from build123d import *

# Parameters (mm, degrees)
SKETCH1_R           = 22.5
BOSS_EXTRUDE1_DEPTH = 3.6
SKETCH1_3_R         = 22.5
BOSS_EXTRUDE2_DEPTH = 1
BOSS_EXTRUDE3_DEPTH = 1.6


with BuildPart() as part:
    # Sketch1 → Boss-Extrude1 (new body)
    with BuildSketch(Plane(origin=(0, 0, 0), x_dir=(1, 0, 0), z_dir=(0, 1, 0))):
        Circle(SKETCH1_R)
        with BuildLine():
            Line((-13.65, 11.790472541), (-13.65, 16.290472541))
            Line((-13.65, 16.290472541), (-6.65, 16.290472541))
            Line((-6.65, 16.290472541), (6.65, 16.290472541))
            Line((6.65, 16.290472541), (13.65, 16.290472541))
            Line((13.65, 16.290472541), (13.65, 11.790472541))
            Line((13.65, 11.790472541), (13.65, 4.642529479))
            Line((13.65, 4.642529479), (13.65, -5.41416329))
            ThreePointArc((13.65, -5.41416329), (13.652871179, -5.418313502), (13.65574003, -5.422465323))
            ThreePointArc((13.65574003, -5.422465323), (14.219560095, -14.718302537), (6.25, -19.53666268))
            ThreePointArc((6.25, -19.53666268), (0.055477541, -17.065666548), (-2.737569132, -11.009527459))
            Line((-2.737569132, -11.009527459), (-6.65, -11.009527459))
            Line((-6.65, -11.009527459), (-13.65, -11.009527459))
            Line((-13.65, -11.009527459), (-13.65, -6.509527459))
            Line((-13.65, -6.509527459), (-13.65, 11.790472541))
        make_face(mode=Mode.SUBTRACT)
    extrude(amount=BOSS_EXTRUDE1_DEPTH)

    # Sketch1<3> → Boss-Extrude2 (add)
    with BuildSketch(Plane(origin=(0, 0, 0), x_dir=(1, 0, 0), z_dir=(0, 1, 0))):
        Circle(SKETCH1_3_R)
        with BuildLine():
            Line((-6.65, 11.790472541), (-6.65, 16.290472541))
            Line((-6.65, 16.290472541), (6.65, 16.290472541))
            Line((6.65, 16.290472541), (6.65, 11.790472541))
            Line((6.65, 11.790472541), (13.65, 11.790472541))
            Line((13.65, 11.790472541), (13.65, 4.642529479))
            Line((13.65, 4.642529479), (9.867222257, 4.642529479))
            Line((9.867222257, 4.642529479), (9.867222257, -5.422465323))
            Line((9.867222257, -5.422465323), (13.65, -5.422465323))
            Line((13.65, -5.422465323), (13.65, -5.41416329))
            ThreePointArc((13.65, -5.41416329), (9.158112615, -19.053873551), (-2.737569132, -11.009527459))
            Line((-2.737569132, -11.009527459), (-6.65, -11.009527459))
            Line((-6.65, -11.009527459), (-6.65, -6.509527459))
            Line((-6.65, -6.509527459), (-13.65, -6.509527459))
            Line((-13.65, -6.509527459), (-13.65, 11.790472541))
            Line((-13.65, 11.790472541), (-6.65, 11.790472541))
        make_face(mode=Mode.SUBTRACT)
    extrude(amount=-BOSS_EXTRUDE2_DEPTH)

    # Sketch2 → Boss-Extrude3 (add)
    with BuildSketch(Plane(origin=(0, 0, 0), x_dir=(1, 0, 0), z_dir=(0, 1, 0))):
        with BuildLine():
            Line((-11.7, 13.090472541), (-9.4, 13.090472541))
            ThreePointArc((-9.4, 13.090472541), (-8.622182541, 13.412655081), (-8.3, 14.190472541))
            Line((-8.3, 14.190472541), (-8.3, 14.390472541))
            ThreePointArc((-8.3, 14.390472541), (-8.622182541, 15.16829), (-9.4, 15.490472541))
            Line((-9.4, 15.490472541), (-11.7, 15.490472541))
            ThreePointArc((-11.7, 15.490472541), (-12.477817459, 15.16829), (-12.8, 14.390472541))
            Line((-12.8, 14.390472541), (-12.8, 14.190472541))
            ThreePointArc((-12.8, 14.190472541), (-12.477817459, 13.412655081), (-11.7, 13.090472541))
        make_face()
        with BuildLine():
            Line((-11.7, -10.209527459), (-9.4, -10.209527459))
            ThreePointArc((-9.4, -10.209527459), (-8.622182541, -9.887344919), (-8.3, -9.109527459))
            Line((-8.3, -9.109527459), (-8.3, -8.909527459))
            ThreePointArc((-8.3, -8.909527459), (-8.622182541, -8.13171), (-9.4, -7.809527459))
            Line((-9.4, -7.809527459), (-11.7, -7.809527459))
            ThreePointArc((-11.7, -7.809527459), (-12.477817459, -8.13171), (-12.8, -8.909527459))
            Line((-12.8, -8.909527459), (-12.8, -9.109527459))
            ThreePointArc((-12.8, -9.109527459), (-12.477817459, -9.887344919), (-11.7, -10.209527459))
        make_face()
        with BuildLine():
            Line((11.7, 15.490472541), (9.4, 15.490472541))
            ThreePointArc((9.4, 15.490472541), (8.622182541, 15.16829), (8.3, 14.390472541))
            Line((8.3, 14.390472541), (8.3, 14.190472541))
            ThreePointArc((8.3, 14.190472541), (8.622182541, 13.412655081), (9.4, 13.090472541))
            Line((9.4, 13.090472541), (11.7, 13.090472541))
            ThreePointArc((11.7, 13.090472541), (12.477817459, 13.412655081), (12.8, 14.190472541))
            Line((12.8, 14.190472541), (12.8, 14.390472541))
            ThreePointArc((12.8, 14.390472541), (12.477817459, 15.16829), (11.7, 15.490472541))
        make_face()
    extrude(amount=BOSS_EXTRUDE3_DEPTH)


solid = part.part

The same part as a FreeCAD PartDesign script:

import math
import FreeCAD as App
import Part
import Sketcher

V = App.Vector
Q = App.Units.Quantity

doc = App.newDocument("Part")
params = doc.addObject("Spreadsheet::Sheet", "Params")
for row, (alias, value) in enumerate([
    ("sketch1_diameter", "45 mm"),
    ("sketch1_radius", "9 mm"),
    ("sketch1_width", "27.3 mm"),
    ("pad1_length", "3.6 mm"),
    ("sketch2_diameter", "45 mm"),
    ("sketch2_radius", "9 mm"),
    ("sketch2_width", "7 mm"),
    ("sketch2_width2", "13.3 mm"),
    ("sketch2_height", "4.5 mm"),
    ("pad2_length", "1 mm"),
    ("sketch3_radius", "1.1 mm"),
    ("sketch3_width", "2.3 mm"),
    ("sketch3_height", "0.2 mm"),
    ("pad3_length", "1.6 mm"),
], start=1):
    params.set(f"A{row}", alias)
    params.set(f"B{row}", "=" + value)
    params.setAlias(f"B{row}", alias)

body = doc.addObject("PartDesign::Body", "Body")

# Sketch on XZ plane
sketch1 = body.newObject("Sketcher::SketchObject", "Sketch")
sketch1.AttachmentSupport = (doc.getObject("XZ_Plane"), [""])
sketch1.MapMode = "FlatFace"
sketch1.addGeometry([
    Part.Circle(V(0, 0, 0), V(0, 0, 1), 22.5),  # 0
    Part.LineSegment(V(-13.65, 11.01, 0), V(-13.65, -16.29, 0)),  # 1
    Part.LineSegment(V(-13.65, -16.29, 0), V(13.65, -16.29, 0)),  # 2
    Part.LineSegment(V(13.65, -16.29, 0), V(13.65, 5.414, 0)),  # 3
    Part.ArcOfCircle(Part.Circle(V(6.25, 10.536, 0), V(0, 0, 1), 9), math.radians(-34.69), math.radians(-34.63)),  # 4
    Part.ArcOfCircle(Part.Circle(V(6.25, 10.537, 0), V(0, 0, 1), 9), math.radians(-35), math.radians(90)),  # 5
    Part.ArcOfCircle(Part.Circle(V(6.25, 10.537, 0), V(0, 0, 1), 9), math.radians(90), math.radians(177)),  # 6
    Part.LineSegment(V(-2.738, 11.01, 0), V(-13.65, 11.01, 0)),  # 7
], False)
sketch1.addConstraint([
    Sketcher.Constraint("Coincident", 1, 2, 2, 1),
    Sketcher.Constraint("Coincident", 2, 2, 3, 1),
    Sketcher.Constraint("Coincident", 3, 2, 4, 1),
    Sketcher.Constraint("Tangent", 4, 2, 5, 1),
    Sketcher.Constraint("Tangent", 5, 2, 6, 1),
    Sketcher.Constraint("Coincident", 6, 2, 7, 1),
    Sketcher.Constraint("Coincident", 7, 2, 1, 1),
    Sketcher.Constraint("Vertical", 1),
    Sketcher.Constraint("Horizontal", 2),
    Sketcher.Constraint("Vertical", 3),
    Sketcher.Constraint("Horizontal", 7),
    Sketcher.Constraint("Coincident", 0, 3, -1, 1),
    Sketcher.Constraint("Equal", 5, 6),
    Sketcher.Constraint("Vertical", 6, 3, 5, 2),
    Sketcher.Constraint("Equal", 2, 1),
    Sketcher.Constraint("Diameter", 0, Q("45 mm")),
    Sketcher.Constraint("Radius", 5, Q("9 mm")),
    Sketcher.Constraint("DistanceX", 2, 1, 2, 2, Q("27.3 mm")),
    Sketcher.Constraint("DistanceX", 1, 2, 5, 3, Q("19.9 mm")),
    Sketcher.Constraint("DistanceX", -1, 1, 5, 3, Q("6.25 mm")),
    Sketcher.Constraint("Radius", 4, Q("8.999512 mm")),
    Sketcher.Constraint("DistanceX", 7, 2, 7, 1, Q("10.912431 mm")),
    Sketcher.Constraint("DistanceX", -1, 1, 4, 2, Q("13.65574 mm")),
    Sketcher.Constraint("DistanceY", -1, 1, 4, 3, Q("10.536385 mm")),
])
sketch1.setExpression("Constraints[15]", "Params.sketch1_diameter")
sketch1.setExpression("Constraints[16]", "Params.sketch1_radius")
sketch1.setExpression("Constraints[17]", "Params.sketch1_width")
pad1 = body.newObject("PartDesign::Pad", "Pad")
pad1.Profile = sketch1
pad1.setExpression("Length", "Params.pad1_length")
pad1.Reversed = True

# Sketch on XZ plane
sketch2 = body.newObject("Sketcher::SketchObject", "Sketch001")
sketch2.AttachmentSupport = (doc.getObject("XZ_Plane"), [""])
sketch2.MapMode = "FlatFace"
sketch2.addGeometry([
    Part.Circle(V(0, 0, 0), V(0, 0, 1), 22.5),  # 0
    Part.LineSegment(V(-13.65, -11.79, 0), V(-6.65, -11.79, 0)),  # 1
    Part.LineSegment(V(-6.65, -11.79, 0), V(-6.65, -16.29, 0)),  # 2
    Part.LineSegment(V(-6.65, -16.29, 0), V(6.65, -16.29, 0)),  # 3
    Part.LineSegment(V(6.65, -16.29, 0), V(6.65, -11.79, 0)),  # 4
    Part.LineSegment(V(6.65, -11.79, 0), V(13.65, -11.79, 0)),  # 5
    Part.LineSegment(V(13.65, -11.79, 0), V(13.65, -4.643, 0)),  # 6
    Part.LineSegment(V(13.65, -4.643, 0), V(9.867, -4.643, 0)),  # 7
    Part.LineSegment(V(9.867, -4.643, 0), V(9.867, 5.422, 0)),  # 8
    Part.LineSegment(V(9.867, 5.422, 0), V(13.65, 5.422, 0)),  # 9
    Part.LineSegment(V(13.65, 5.422, 0), V(13.65, 5.414, 0)),  # 10
    Part.ArcOfCircle(Part.Circle(V(6.25, 10.537, 0), V(0, 0, 1), 9), math.radians(-35), math.radians(177)),  # 11
    Part.LineSegment(V(-2.738, 11.01, 0), V(-6.65, 11.01, 0)),  # 12
    Part.LineSegment(V(-6.65, 11.01, 0), V(-6.65, 6.51, 0)),  # 13
    Part.LineSegment(V(-6.65, 6.51, 0), V(-13.65, 6.51, 0)),  # 14
    Part.LineSegment(V(-13.65, 6.51, 0), V(-13.65, -11.79, 0)),  # 15
], False)
sketch2.addConstraint([
    Sketcher.Constraint("Coincident", 1, 2, 2, 1),
    Sketcher.Constraint("Coincident", 2, 2, 3, 1),
    Sketcher.Constraint("Coincident", 3, 2, 4, 1),
    Sketcher.Constraint("Coincident", 4, 2, 5, 1),
    Sketcher.Constraint("Coincident", 5, 2, 6, 1),
    Sketcher.Constraint("Coincident", 6, 2, 7, 1),
    Sketcher.Constraint("Coincident", 7, 2, 8, 1),
    Sketcher.Constraint("Coincident", 8, 2, 9, 1),
    Sketcher.Constraint("Coincident", 9, 2, 10, 1),
    Sketcher.Constraint("Coincident", 10, 2, 11, 1),
    Sketcher.Constraint("Coincident", 11, 2, 12, 1),
    Sketcher.Constraint("Coincident", 12, 2, 13, 1),
    Sketcher.Constraint("Coincident", 13, 2, 14, 1),
    Sketcher.Constraint("Coincident", 14, 2, 15, 1),
    Sketcher.Constraint("Coincident", 15, 2, 1, 1),
    Sketcher.Constraint("Horizontal", 1),
    Sketcher.Constraint("Vertical", 2),
    Sketcher.Constraint("Horizontal", 3),
    Sketcher.Constraint("Vertical", 4),
    Sketcher.Constraint("Horizontal", 5),
    Sketcher.Constraint("Vertical", 6),
    Sketcher.Constraint("Horizontal", 7),
    Sketcher.Constraint("Vertical", 8),
    Sketcher.Constraint("Horizontal", 9),
    Sketcher.Constraint("Vertical", 10),
    Sketcher.Constraint("Horizontal", 12),
    Sketcher.Constraint("Vertical", 13),
    Sketcher.Constraint("Horizontal", 14),
    Sketcher.Constraint("Vertical", 15),
    Sketcher.Constraint("Coincident", 0, 3, -1, 1),
    Sketcher.Constraint("Symmetric", 1, 2, 4, 2, -2),
    Sketcher.Constraint("Vertical", 6, 2, 9, 2),
    Sketcher.Constraint("Vertical", 2, 2, 12, 2),
    Sketcher.Constraint("Equal", 1, 5),
    Sketcher.Constraint("Equal", 4, 13),
    Sketcher.Constraint("Diameter", 0, Q("45 mm")),
    Sketcher.Constraint("Radius", 11, Q("9 mm")),
    Sketcher.Constraint("DistanceX", 1, 1, 1, 2, Q("7 mm")),
    Sketcher.Constraint("DistanceX", 3, 1, 3, 2, Q("13.3 mm")),
    Sketcher.Constraint("DistanceY", 2, 2, 2, 1, Q("4.5 mm")),
    Sketcher.Constraint("DistanceY", 15, 2, 15, 1, Q("18.3 mm")),
    Sketcher.Constraint("DistanceX", 1, 2, 11, 3, Q("12.9 mm")),
    Sketcher.Constraint("DistanceX", 12, 2, 12, 1, Q("3.912431 mm")),
    Sketcher.Constraint("DistanceX", 7, 2, 7, 1, Q("3.782778 mm")),
    Sketcher.Constraint("DistanceY", 6, 1, 6, 2, Q("7.147943 mm")),
    Sketcher.Constraint("DistanceY", 8, 1, 8, 2, Q("10.064995 mm")),
    Sketcher.Constraint("DistanceY", 6, 2, -1, 1, Q("4.642529 mm")),
])
sketch2.setExpression("Constraints[35]", "Params.sketch2_diameter")
sketch2.setExpression("Constraints[36]", "Params.sketch2_radius")
sketch2.setExpression("Constraints[37]", "Params.sketch2_width")
sketch2.setExpression("Constraints[38]", "Params.sketch2_width2")
sketch2.setExpression("Constraints[39]", "Params.sketch2_height")
pad2 = body.newObject("PartDesign::Pad", "Pad001")
pad2.Profile = sketch2
pad2.setExpression("Length", "Params.pad2_length")

# Sketch on XZ plane
sketch3 = body.newObject("Sketcher::SketchObject", "Sketch002")
sketch3.AttachmentSupport = (doc.getObject("XZ_Plane"), [""])
sketch3.MapMode = "FlatFace"
sketch3.addGeometry([
    Part.LineSegment(V(-11.7, -13.09, 0), V(-9.4, -13.09, 0)),  # 0
    Part.ArcOfCircle(Part.Circle(V(-9.4, -14.19, 0), V(0, 0, 1), 1.1), math.radians(0), math.radians(90)),  # 1
    Part.LineSegment(V(-8.3, -14.19, 0), V(-8.3, -14.39, 0)),  # 2
    Part.ArcOfCircle(Part.Circle(V(-9.4, -14.39, 0), V(0, 0, 1), 1.1), math.radians(-90), math.radians(0)),  # 3
    Part.LineSegment(V(-9.4, -15.49, 0), V(-11.7, -15.49, 0)),  # 4
    Part.ArcOfCircle(Part.Circle(V(-11.7, -14.39, 0), V(0, 0, 1), 1.1), math.radians(-180), math.radians(-90)),  # 5
    Part.LineSegment(V(-12.8, -14.39, 0), V(-12.8, -14.19, 0)),  # 6
    Part.ArcOfCircle(Part.Circle(V(-11.7, -14.19, 0), V(0, 0, 1), 1.1), math.radians(90), math.radians(180)),  # 7
    Part.LineSegment(V(-11.7, 10.21, 0), V(-9.4, 10.21, 0)),  # 8
    Part.ArcOfCircle(Part.Circle(V(-9.4, 9.11, 0), V(0, 0, 1), 1.1), math.radians(0), math.radians(90)),  # 9
    Part.LineSegment(V(-8.3, 9.11, 0), V(-8.3, 8.91, 0)),  # 10
    Part.ArcOfCircle(Part.Circle(V(-9.4, 8.91, 0), V(0, 0, 1), 1.1), math.radians(-90), math.radians(0)),  # 11
    Part.LineSegment(V(-9.4, 7.81, 0), V(-11.7, 7.81, 0)),  # 12
    Part.ArcOfCircle(Part.Circle(V(-11.7, 8.91, 0), V(0, 0, 1), 1.1), math.radians(-180), math.radians(-90)),  # 13
    Part.LineSegment(V(-12.8, 8.91, 0), V(-12.8, 9.11, 0)),  # 14
    Part.ArcOfCircle(Part.Circle(V(-11.7, 9.11, 0), V(0, 0, 1), 1.1), math.radians(90), math.radians(180)),  # 15
    Part.LineSegment(V(11.7, -15.49, 0), V(9.4, -15.49, 0)),  # 16
    Part.ArcOfCircle(Part.Circle(V(9.4, -14.39, 0), V(0, 0, 1), 1.1), math.radians(-180), math.radians(-90)),  # 17
    Part.LineSegment(V(8.3, -14.39, 0), V(8.3, -14.19, 0)),  # 18
    Part.ArcOfCircle(Part.Circle(V(9.4, -14.19, 0), V(0, 0, 1), 1.1), math.radians(90), math.radians(180)),  # 19
    Part.LineSegment(V(9.4, -13.09, 0), V(11.7, -13.09, 0)),  # 20
    Part.ArcOfCircle(Part.Circle(V(11.7, -14.19, 0), V(0, 0, 1), 1.1), math.radians(0), math.radians(90)),  # 21
    Part.LineSegment(V(12.8, -14.19, 0), V(12.8, -14.39, 0)),  # 22
    Part.ArcOfCircle(Part.Circle(V(11.7, -14.39, 0), V(0, 0, 1), 1.1), math.radians(-90), math.radians(0)),  # 23
], False)
sketch3.addConstraint([
    Sketcher.Constraint("Tangent", 0, 2, 1, 2),
    Sketcher.Constraint("Tangent", 1, 1, 2, 1),
    Sketcher.Constraint("Tangent", 2, 2, 3, 2),
    Sketcher.Constraint("Tangent", 3, 1, 4, 1),
    Sketcher.Constraint("Tangent", 4, 2, 5, 2),
    Sketcher.Constraint("Tangent", 5, 1, 6, 1),
    Sketcher.Constraint("Tangent", 6, 2, 7, 2),
    Sketcher.Constraint("Tangent", 7, 1, 0, 1),
    Sketcher.Constraint("Tangent", 8, 2, 9, 2),
    Sketcher.Constraint("Tangent", 9, 1, 10, 1),
    Sketcher.Constraint("Tangent", 10, 2, 11, 2),
    Sketcher.Constraint("Tangent", 11, 1, 12, 1),
    Sketcher.Constraint("Tangent", 12, 2, 13, 2),
    Sketcher.Constraint("Tangent", 13, 1, 14, 1),
    Sketcher.Constraint("Tangent", 14, 2, 15, 2),
    Sketcher.Constraint("Tangent", 15, 1, 8, 1),
    Sketcher.Constraint("Tangent", 16, 2, 17, 2),
    Sketcher.Constraint("Tangent", 17, 1, 18, 1),
    Sketcher.Constraint("Tangent", 18, 2, 19, 2),
    Sketcher.Constraint("Tangent", 19, 1, 20, 1),
    Sketcher.Constraint("Tangent", 20, 2, 21, 2),
    Sketcher.Constraint("Tangent", 21, 1, 22, 1),
    Sketcher.Constraint("Tangent", 22, 2, 23, 2),
    Sketcher.Constraint("Tangent", 23, 1, 16, 1),
    Sketcher.Constraint("Horizontal", 0),
    Sketcher.Constraint("Vertical", 2),
    Sketcher.Constraint("Horizontal", 4),
    Sketcher.Constraint("Vertical", 6),
    Sketcher.Constraint("Horizontal", 8),
    Sketcher.Constraint("Vertical", 10),
    Sketcher.Constraint("Horizontal", 12),
    Sketcher.Constraint("Vertical", 14),
    Sketcher.Constraint("Horizontal", 16),
    Sketcher.Constraint("Vertical", 18),
    Sketcher.Constraint("Horizontal", 20),
    Sketcher.Constraint("Vertical", 22),
    Sketcher.Constraint("Equal", 1, 3),
    Sketcher.Constraint("Equal", 3, 5),
    Sketcher.Constraint("Equal", 5, 7),
    Sketcher.Constraint("Equal", 7, 9),
    Sketcher.Constraint("Equal", 9, 11),
    Sketcher.Constraint("Equal", 11, 13),
    Sketcher.Constraint("Equal", 13, 15),
    Sketcher.Constraint("Equal", 15, 17),
    Sketcher.Constraint("Equal", 17, 19),
    Sketcher.Constraint("Equal", 19, 21),
    Sketcher.Constraint("Equal", 21, 23),
    Sketcher.Constraint("Symmetric", 3, 3, 17, 3, -2),
    Sketcher.Constraint("Symmetric", 7, 3, 21, 3, -2),
    Sketcher.Constraint("Vertical", 3, 3, 9, 3),
    Sketcher.Constraint("Vertical", 7, 3, 13, 3),
    Sketcher.Constraint("Equal", 6, 10),
    Sketcher.Constraint("Radius", 1, Q("1.1 mm")),
    Sketcher.Constraint("DistanceX", 0, 1, 0, 2, Q("2.3 mm")),
    Sketcher.Constraint("DistanceY", 2, 2, 2, 1, Q("0.2 mm")),
    Sketcher.Constraint("DistanceX", 1, 3, -1, 1, Q("9.4 mm")),
    Sketcher.Constraint("DistanceY", 1, 3, 9, 3, Q("23.3 mm")),
    Sketcher.Constraint("DistanceY", 1, 3, -1, 1, Q("14.190473 mm")),
])
sketch3.setExpression("Constraints[52]", "Params.sketch3_radius")
sketch3.setExpression("Constraints[53]", "Params.sketch3_width")
sketch3.setExpression("Constraints[54]", "Params.sketch3_height")
pad3 = body.newObject("PartDesign::Pad", "Pad002")
pad3.Profile = sketch3
pad3.setExpression("Length", "Params.pad3_length")
pad3.Reversed = True

doc.recompute()
